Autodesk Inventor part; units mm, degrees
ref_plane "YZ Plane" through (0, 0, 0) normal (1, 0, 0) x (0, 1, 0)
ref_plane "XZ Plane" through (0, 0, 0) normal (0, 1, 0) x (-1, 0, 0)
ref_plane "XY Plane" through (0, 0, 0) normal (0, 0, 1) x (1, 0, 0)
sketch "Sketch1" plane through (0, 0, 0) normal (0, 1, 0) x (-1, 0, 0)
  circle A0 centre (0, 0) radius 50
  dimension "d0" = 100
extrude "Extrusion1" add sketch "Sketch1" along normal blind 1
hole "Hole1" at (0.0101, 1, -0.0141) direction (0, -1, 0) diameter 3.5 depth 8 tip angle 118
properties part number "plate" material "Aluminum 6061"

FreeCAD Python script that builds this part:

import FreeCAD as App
import Part
import Sketcher
Q = App.Units.Quantity

doc = App.newDocument("Part")
body = doc.addObject("PartDesign::Body", "Body")

# Sketch on XZ plane
sketch1 = doc.addObject("Sketcher::SketchObject", "Sketch")
body.addObject(sketch1)
sketch1.AttachmentSupport = (doc.XZ_Plane, [""])
sketch1.MapMode = "FlatFace"
sketch1.addGeometry(Part.Circle(App.Vector(0, 0, 0), App.Vector(0, 0, 1), 50), False)
sketch1.addConstraint(Sketcher.Constraint("Coincident", 0, 3, -1, 1))
sketch1.addConstraint(Sketcher.Constraint("Diameter", 0, Q("100 mm")))
pad1 = doc.addObject("PartDesign::Pad", "Pad")
body.addObject(pad1)
pad1.Profile = sketch1
pad1.Length = 1
pad1.Reversed = True

# Sketch on XZ plane
sketch2 = doc.addObject("Sketcher::SketchObject", "Sketch001")
body.addObject(sketch2)
sketch2.AttachmentSupport = (doc.XZ_Plane, [""])
sketch2.MapMode = "FlatFace"
sketch2.AttachmentOffset = App.Placement(App.Vector(0, 0, -1), App.Rotation())
sketch2.addGeometry(Part.Circle(App.Vector(0, 0, 0), App.Vector(0, 0, 1), 1.8), False)
sketch2.addConstraint(Sketcher.Constraint("Diameter", 0, Q("3.5 mm")))
sketch2.addConstraint(Sketcher.Constraint("DistanceX", -1, 1, 0, 3, Q("0.01 mm")))
sketch2.addConstraint(Sketcher.Constraint("DistanceY", 0, 3, -1, 1, Q("0.014 mm")))
doc.recompute()
hole = doc.addObject("PartDesign::Hole", "Hole")
body.addObject(hole)
hole.Profile = sketch2
hole.ThreadType = "None"
hole.Diameter = 3.5
hole.DepthType = "Dimension"
hole.Depth = 8
hole.DrillPoint = "Angled"
hole.DrillPointAngle = 118
hole.Reversed = True

doc.recompute()
